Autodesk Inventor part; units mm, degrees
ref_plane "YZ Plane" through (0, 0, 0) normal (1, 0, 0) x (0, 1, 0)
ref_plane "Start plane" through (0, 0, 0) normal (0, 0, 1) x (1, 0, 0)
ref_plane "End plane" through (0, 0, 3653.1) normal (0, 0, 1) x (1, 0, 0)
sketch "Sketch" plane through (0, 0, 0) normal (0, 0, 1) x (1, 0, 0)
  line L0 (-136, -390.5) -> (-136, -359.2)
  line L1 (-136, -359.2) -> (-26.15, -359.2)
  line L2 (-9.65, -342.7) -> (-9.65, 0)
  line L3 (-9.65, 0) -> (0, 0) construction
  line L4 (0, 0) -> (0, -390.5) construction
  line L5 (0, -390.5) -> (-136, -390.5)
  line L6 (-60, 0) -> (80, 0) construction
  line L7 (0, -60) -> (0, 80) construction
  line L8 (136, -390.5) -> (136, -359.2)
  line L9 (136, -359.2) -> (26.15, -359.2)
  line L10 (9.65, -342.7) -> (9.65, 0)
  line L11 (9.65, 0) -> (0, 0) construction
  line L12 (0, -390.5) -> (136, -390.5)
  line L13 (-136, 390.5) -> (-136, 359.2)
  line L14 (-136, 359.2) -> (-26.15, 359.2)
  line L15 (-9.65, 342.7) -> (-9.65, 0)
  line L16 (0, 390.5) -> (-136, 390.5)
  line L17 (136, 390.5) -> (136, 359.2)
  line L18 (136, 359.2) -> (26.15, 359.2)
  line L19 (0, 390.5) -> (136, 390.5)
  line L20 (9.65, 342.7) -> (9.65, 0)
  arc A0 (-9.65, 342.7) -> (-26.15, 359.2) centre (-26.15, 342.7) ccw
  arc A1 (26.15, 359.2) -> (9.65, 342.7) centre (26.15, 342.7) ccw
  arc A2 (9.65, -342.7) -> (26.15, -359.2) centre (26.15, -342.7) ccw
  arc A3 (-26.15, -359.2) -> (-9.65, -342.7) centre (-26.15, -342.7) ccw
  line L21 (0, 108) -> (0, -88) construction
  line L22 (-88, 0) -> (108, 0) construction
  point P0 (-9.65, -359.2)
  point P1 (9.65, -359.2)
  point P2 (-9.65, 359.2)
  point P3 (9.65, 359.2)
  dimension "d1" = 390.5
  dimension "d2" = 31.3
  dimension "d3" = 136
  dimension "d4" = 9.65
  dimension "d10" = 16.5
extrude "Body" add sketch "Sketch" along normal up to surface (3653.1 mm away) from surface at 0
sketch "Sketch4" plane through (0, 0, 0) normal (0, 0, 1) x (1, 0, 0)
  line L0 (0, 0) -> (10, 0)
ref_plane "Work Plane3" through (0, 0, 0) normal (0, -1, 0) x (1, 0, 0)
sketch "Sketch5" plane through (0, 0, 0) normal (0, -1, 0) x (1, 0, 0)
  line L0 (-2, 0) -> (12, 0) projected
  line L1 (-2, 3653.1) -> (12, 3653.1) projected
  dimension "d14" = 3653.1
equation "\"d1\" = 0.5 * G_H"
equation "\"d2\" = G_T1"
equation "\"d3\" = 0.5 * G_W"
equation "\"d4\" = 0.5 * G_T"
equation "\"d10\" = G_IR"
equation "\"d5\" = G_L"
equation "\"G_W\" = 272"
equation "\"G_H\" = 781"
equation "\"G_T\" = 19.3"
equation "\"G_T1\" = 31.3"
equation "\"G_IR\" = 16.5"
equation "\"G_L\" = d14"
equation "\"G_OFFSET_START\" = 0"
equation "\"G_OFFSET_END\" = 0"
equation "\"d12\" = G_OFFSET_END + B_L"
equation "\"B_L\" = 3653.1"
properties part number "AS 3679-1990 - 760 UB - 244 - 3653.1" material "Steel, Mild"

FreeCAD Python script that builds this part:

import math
import FreeCAD as App
import Part
import Sketcher

V = App.Vector
Q = App.Units.Quantity

doc = App.newDocument("Part")
body = doc.addObject("PartDesign::Body", "Body")

sketch1 = body.newObject("Sketcher::SketchObject", "Sketch")
sketch1.AttachmentSupport = (doc.getObject("XY_Plane"), [""])
sketch1.MapMode = "FlatFace"
sketch1.addGeometry([
    Part.LineSegment(V(-136, -359, 0), V(-136, -390, 0)),
    Part.LineSegment(V(-136, -390, 0), V(136, -390, 0)),
    Part.LineSegment(V(136, -390, 0), V(136, -359, 0)),
    Part.LineSegment(V(136, -359, 0), V(26, -359, 0)),
    Part.ArcOfCircle(Part.Circle(V(26, -343, 0), V(0, 0, 1), 16), math.radians(180), math.radians(270)),
    Part.LineSegment(V(10, -343, 0), V(10, 343, 0)),
    Part.ArcOfCircle(Part.Circle(V(26, 343, 0), V(0, 0, 1), 16), math.radians(90), math.radians(180)),
    Part.LineSegment(V(26, 359, 0), V(136, 359, 0)),
    Part.LineSegment(V(136, 359, 0), V(136, 390, 0)),
    Part.LineSegment(V(136, 390, 0), V(-136, 390, 0)),
    Part.LineSegment(V(-136, 390, 0), V(-136, 359, 0)),
    Part.LineSegment(V(-136, 359, 0), V(-26, 359, 0)),
    Part.ArcOfCircle(Part.Circle(V(-26, 343, 0), V(0, 0, 1), 16), math.radians(0), math.radians(90)),
    Part.LineSegment(V(-10, 343, 0), V(-10, -343, 0)),
    Part.ArcOfCircle(Part.Circle(V(-26, -343, 0), V(0, 0, 1), 16), math.radians(-90), math.radians(0)),
    Part.LineSegment(V(-26, -359, 0), V(-136, -359, 0)),
], False)
sketch1.addConstraint([
    Sketcher.Constraint("Coincident", 0, 2, 1, 1),
    Sketcher.Constraint("Coincident", 1, 2, 2, 1),
    Sketcher.Constraint("Coincident", 2, 2, 3, 1),
    Sketcher.Constraint("Tangent", 3, 2, 4, 2),
    Sketcher.Constraint("Tangent", 4, 1, 5, 1),
    Sketcher.Constraint("Tangent", 5, 2, 6, 2),
    Sketcher.Constraint("Tangent", 6, 1, 7, 1),
    Sketcher.Constraint("Coincident", 7, 2, 8, 1),
    Sketcher.Constraint("Coincident", 8, 2, 9, 1),
    Sketcher.Constraint("Coincident", 9, 2, 10, 1),
    Sketcher.Constraint("Coincident", 10, 2, 11, 1),
    Sketcher.Constraint("Tangent", 11, 2, 12, 2),
    Sketcher.Constraint("Tangent", 12, 1, 13, 1),
    Sketcher.Constraint("Tangent", 13, 2, 14, 2),
    Sketcher.Constraint("Tangent", 14, 1, 15, 1),
    Sketcher.Constraint("Coincident", 15, 2, 0, 1),
    Sketcher.Constraint("Vertical", 0),
    Sketcher.Constraint("Horizontal", 1),
    Sketcher.Constraint("Vertical", 2),
    Sketcher.Constraint("Horizontal", 3),
    Sketcher.Constraint("Vertical", 5),
    Sketcher.Constraint("Horizontal", 7),
    Sketcher.Constraint("Vertical", 8),
    Sketcher.Constraint("Horizontal", 9),
    Sketcher.Constraint("Vertical", 10),
    Sketcher.Constraint("Horizontal", 11),
    Sketcher.Constraint("Vertical", 13),
    Sketcher.Constraint("Horizontal", 15),
    Sketcher.Constraint("Equal", 4, 6),
    Sketcher.Constraint("Equal", 6, 12),
    Sketcher.Constraint("Equal", 12, 14),
    Sketcher.Constraint("Symmetric", 4, 3, 12, 3, -1, 1),
    Sketcher.Constraint("Symmetric", 0, 2, 8, 2, -1, 1),
    Sketcher.Constraint("Symmetric", 7, 2, 10, 2, -2),
    Sketcher.Constraint("Symmetric", 2, 2, 15, 2, -2),
    Sketcher.Constraint("Radius", 4, Q("16.5 mm")),
    Sketcher.Constraint("DistanceY", 0, 2, 0, 1, Q("31.3 mm")),
    Sketcher.Constraint("DistanceX", 0, 2, -1, 1, Q("136 mm")),
    Sketcher.Constraint("DistanceY", 0, 2, -1, 1, Q("390.5 mm")),
    Sketcher.Constraint("DistanceX", -1, 1, 4, 1, Q("9.65 mm")),
])
pad1 = body.newObject("PartDesign::Pad", "Pad")
pad1.Profile = sketch1
pad1.Length = 3653.1

doc.recompute()
